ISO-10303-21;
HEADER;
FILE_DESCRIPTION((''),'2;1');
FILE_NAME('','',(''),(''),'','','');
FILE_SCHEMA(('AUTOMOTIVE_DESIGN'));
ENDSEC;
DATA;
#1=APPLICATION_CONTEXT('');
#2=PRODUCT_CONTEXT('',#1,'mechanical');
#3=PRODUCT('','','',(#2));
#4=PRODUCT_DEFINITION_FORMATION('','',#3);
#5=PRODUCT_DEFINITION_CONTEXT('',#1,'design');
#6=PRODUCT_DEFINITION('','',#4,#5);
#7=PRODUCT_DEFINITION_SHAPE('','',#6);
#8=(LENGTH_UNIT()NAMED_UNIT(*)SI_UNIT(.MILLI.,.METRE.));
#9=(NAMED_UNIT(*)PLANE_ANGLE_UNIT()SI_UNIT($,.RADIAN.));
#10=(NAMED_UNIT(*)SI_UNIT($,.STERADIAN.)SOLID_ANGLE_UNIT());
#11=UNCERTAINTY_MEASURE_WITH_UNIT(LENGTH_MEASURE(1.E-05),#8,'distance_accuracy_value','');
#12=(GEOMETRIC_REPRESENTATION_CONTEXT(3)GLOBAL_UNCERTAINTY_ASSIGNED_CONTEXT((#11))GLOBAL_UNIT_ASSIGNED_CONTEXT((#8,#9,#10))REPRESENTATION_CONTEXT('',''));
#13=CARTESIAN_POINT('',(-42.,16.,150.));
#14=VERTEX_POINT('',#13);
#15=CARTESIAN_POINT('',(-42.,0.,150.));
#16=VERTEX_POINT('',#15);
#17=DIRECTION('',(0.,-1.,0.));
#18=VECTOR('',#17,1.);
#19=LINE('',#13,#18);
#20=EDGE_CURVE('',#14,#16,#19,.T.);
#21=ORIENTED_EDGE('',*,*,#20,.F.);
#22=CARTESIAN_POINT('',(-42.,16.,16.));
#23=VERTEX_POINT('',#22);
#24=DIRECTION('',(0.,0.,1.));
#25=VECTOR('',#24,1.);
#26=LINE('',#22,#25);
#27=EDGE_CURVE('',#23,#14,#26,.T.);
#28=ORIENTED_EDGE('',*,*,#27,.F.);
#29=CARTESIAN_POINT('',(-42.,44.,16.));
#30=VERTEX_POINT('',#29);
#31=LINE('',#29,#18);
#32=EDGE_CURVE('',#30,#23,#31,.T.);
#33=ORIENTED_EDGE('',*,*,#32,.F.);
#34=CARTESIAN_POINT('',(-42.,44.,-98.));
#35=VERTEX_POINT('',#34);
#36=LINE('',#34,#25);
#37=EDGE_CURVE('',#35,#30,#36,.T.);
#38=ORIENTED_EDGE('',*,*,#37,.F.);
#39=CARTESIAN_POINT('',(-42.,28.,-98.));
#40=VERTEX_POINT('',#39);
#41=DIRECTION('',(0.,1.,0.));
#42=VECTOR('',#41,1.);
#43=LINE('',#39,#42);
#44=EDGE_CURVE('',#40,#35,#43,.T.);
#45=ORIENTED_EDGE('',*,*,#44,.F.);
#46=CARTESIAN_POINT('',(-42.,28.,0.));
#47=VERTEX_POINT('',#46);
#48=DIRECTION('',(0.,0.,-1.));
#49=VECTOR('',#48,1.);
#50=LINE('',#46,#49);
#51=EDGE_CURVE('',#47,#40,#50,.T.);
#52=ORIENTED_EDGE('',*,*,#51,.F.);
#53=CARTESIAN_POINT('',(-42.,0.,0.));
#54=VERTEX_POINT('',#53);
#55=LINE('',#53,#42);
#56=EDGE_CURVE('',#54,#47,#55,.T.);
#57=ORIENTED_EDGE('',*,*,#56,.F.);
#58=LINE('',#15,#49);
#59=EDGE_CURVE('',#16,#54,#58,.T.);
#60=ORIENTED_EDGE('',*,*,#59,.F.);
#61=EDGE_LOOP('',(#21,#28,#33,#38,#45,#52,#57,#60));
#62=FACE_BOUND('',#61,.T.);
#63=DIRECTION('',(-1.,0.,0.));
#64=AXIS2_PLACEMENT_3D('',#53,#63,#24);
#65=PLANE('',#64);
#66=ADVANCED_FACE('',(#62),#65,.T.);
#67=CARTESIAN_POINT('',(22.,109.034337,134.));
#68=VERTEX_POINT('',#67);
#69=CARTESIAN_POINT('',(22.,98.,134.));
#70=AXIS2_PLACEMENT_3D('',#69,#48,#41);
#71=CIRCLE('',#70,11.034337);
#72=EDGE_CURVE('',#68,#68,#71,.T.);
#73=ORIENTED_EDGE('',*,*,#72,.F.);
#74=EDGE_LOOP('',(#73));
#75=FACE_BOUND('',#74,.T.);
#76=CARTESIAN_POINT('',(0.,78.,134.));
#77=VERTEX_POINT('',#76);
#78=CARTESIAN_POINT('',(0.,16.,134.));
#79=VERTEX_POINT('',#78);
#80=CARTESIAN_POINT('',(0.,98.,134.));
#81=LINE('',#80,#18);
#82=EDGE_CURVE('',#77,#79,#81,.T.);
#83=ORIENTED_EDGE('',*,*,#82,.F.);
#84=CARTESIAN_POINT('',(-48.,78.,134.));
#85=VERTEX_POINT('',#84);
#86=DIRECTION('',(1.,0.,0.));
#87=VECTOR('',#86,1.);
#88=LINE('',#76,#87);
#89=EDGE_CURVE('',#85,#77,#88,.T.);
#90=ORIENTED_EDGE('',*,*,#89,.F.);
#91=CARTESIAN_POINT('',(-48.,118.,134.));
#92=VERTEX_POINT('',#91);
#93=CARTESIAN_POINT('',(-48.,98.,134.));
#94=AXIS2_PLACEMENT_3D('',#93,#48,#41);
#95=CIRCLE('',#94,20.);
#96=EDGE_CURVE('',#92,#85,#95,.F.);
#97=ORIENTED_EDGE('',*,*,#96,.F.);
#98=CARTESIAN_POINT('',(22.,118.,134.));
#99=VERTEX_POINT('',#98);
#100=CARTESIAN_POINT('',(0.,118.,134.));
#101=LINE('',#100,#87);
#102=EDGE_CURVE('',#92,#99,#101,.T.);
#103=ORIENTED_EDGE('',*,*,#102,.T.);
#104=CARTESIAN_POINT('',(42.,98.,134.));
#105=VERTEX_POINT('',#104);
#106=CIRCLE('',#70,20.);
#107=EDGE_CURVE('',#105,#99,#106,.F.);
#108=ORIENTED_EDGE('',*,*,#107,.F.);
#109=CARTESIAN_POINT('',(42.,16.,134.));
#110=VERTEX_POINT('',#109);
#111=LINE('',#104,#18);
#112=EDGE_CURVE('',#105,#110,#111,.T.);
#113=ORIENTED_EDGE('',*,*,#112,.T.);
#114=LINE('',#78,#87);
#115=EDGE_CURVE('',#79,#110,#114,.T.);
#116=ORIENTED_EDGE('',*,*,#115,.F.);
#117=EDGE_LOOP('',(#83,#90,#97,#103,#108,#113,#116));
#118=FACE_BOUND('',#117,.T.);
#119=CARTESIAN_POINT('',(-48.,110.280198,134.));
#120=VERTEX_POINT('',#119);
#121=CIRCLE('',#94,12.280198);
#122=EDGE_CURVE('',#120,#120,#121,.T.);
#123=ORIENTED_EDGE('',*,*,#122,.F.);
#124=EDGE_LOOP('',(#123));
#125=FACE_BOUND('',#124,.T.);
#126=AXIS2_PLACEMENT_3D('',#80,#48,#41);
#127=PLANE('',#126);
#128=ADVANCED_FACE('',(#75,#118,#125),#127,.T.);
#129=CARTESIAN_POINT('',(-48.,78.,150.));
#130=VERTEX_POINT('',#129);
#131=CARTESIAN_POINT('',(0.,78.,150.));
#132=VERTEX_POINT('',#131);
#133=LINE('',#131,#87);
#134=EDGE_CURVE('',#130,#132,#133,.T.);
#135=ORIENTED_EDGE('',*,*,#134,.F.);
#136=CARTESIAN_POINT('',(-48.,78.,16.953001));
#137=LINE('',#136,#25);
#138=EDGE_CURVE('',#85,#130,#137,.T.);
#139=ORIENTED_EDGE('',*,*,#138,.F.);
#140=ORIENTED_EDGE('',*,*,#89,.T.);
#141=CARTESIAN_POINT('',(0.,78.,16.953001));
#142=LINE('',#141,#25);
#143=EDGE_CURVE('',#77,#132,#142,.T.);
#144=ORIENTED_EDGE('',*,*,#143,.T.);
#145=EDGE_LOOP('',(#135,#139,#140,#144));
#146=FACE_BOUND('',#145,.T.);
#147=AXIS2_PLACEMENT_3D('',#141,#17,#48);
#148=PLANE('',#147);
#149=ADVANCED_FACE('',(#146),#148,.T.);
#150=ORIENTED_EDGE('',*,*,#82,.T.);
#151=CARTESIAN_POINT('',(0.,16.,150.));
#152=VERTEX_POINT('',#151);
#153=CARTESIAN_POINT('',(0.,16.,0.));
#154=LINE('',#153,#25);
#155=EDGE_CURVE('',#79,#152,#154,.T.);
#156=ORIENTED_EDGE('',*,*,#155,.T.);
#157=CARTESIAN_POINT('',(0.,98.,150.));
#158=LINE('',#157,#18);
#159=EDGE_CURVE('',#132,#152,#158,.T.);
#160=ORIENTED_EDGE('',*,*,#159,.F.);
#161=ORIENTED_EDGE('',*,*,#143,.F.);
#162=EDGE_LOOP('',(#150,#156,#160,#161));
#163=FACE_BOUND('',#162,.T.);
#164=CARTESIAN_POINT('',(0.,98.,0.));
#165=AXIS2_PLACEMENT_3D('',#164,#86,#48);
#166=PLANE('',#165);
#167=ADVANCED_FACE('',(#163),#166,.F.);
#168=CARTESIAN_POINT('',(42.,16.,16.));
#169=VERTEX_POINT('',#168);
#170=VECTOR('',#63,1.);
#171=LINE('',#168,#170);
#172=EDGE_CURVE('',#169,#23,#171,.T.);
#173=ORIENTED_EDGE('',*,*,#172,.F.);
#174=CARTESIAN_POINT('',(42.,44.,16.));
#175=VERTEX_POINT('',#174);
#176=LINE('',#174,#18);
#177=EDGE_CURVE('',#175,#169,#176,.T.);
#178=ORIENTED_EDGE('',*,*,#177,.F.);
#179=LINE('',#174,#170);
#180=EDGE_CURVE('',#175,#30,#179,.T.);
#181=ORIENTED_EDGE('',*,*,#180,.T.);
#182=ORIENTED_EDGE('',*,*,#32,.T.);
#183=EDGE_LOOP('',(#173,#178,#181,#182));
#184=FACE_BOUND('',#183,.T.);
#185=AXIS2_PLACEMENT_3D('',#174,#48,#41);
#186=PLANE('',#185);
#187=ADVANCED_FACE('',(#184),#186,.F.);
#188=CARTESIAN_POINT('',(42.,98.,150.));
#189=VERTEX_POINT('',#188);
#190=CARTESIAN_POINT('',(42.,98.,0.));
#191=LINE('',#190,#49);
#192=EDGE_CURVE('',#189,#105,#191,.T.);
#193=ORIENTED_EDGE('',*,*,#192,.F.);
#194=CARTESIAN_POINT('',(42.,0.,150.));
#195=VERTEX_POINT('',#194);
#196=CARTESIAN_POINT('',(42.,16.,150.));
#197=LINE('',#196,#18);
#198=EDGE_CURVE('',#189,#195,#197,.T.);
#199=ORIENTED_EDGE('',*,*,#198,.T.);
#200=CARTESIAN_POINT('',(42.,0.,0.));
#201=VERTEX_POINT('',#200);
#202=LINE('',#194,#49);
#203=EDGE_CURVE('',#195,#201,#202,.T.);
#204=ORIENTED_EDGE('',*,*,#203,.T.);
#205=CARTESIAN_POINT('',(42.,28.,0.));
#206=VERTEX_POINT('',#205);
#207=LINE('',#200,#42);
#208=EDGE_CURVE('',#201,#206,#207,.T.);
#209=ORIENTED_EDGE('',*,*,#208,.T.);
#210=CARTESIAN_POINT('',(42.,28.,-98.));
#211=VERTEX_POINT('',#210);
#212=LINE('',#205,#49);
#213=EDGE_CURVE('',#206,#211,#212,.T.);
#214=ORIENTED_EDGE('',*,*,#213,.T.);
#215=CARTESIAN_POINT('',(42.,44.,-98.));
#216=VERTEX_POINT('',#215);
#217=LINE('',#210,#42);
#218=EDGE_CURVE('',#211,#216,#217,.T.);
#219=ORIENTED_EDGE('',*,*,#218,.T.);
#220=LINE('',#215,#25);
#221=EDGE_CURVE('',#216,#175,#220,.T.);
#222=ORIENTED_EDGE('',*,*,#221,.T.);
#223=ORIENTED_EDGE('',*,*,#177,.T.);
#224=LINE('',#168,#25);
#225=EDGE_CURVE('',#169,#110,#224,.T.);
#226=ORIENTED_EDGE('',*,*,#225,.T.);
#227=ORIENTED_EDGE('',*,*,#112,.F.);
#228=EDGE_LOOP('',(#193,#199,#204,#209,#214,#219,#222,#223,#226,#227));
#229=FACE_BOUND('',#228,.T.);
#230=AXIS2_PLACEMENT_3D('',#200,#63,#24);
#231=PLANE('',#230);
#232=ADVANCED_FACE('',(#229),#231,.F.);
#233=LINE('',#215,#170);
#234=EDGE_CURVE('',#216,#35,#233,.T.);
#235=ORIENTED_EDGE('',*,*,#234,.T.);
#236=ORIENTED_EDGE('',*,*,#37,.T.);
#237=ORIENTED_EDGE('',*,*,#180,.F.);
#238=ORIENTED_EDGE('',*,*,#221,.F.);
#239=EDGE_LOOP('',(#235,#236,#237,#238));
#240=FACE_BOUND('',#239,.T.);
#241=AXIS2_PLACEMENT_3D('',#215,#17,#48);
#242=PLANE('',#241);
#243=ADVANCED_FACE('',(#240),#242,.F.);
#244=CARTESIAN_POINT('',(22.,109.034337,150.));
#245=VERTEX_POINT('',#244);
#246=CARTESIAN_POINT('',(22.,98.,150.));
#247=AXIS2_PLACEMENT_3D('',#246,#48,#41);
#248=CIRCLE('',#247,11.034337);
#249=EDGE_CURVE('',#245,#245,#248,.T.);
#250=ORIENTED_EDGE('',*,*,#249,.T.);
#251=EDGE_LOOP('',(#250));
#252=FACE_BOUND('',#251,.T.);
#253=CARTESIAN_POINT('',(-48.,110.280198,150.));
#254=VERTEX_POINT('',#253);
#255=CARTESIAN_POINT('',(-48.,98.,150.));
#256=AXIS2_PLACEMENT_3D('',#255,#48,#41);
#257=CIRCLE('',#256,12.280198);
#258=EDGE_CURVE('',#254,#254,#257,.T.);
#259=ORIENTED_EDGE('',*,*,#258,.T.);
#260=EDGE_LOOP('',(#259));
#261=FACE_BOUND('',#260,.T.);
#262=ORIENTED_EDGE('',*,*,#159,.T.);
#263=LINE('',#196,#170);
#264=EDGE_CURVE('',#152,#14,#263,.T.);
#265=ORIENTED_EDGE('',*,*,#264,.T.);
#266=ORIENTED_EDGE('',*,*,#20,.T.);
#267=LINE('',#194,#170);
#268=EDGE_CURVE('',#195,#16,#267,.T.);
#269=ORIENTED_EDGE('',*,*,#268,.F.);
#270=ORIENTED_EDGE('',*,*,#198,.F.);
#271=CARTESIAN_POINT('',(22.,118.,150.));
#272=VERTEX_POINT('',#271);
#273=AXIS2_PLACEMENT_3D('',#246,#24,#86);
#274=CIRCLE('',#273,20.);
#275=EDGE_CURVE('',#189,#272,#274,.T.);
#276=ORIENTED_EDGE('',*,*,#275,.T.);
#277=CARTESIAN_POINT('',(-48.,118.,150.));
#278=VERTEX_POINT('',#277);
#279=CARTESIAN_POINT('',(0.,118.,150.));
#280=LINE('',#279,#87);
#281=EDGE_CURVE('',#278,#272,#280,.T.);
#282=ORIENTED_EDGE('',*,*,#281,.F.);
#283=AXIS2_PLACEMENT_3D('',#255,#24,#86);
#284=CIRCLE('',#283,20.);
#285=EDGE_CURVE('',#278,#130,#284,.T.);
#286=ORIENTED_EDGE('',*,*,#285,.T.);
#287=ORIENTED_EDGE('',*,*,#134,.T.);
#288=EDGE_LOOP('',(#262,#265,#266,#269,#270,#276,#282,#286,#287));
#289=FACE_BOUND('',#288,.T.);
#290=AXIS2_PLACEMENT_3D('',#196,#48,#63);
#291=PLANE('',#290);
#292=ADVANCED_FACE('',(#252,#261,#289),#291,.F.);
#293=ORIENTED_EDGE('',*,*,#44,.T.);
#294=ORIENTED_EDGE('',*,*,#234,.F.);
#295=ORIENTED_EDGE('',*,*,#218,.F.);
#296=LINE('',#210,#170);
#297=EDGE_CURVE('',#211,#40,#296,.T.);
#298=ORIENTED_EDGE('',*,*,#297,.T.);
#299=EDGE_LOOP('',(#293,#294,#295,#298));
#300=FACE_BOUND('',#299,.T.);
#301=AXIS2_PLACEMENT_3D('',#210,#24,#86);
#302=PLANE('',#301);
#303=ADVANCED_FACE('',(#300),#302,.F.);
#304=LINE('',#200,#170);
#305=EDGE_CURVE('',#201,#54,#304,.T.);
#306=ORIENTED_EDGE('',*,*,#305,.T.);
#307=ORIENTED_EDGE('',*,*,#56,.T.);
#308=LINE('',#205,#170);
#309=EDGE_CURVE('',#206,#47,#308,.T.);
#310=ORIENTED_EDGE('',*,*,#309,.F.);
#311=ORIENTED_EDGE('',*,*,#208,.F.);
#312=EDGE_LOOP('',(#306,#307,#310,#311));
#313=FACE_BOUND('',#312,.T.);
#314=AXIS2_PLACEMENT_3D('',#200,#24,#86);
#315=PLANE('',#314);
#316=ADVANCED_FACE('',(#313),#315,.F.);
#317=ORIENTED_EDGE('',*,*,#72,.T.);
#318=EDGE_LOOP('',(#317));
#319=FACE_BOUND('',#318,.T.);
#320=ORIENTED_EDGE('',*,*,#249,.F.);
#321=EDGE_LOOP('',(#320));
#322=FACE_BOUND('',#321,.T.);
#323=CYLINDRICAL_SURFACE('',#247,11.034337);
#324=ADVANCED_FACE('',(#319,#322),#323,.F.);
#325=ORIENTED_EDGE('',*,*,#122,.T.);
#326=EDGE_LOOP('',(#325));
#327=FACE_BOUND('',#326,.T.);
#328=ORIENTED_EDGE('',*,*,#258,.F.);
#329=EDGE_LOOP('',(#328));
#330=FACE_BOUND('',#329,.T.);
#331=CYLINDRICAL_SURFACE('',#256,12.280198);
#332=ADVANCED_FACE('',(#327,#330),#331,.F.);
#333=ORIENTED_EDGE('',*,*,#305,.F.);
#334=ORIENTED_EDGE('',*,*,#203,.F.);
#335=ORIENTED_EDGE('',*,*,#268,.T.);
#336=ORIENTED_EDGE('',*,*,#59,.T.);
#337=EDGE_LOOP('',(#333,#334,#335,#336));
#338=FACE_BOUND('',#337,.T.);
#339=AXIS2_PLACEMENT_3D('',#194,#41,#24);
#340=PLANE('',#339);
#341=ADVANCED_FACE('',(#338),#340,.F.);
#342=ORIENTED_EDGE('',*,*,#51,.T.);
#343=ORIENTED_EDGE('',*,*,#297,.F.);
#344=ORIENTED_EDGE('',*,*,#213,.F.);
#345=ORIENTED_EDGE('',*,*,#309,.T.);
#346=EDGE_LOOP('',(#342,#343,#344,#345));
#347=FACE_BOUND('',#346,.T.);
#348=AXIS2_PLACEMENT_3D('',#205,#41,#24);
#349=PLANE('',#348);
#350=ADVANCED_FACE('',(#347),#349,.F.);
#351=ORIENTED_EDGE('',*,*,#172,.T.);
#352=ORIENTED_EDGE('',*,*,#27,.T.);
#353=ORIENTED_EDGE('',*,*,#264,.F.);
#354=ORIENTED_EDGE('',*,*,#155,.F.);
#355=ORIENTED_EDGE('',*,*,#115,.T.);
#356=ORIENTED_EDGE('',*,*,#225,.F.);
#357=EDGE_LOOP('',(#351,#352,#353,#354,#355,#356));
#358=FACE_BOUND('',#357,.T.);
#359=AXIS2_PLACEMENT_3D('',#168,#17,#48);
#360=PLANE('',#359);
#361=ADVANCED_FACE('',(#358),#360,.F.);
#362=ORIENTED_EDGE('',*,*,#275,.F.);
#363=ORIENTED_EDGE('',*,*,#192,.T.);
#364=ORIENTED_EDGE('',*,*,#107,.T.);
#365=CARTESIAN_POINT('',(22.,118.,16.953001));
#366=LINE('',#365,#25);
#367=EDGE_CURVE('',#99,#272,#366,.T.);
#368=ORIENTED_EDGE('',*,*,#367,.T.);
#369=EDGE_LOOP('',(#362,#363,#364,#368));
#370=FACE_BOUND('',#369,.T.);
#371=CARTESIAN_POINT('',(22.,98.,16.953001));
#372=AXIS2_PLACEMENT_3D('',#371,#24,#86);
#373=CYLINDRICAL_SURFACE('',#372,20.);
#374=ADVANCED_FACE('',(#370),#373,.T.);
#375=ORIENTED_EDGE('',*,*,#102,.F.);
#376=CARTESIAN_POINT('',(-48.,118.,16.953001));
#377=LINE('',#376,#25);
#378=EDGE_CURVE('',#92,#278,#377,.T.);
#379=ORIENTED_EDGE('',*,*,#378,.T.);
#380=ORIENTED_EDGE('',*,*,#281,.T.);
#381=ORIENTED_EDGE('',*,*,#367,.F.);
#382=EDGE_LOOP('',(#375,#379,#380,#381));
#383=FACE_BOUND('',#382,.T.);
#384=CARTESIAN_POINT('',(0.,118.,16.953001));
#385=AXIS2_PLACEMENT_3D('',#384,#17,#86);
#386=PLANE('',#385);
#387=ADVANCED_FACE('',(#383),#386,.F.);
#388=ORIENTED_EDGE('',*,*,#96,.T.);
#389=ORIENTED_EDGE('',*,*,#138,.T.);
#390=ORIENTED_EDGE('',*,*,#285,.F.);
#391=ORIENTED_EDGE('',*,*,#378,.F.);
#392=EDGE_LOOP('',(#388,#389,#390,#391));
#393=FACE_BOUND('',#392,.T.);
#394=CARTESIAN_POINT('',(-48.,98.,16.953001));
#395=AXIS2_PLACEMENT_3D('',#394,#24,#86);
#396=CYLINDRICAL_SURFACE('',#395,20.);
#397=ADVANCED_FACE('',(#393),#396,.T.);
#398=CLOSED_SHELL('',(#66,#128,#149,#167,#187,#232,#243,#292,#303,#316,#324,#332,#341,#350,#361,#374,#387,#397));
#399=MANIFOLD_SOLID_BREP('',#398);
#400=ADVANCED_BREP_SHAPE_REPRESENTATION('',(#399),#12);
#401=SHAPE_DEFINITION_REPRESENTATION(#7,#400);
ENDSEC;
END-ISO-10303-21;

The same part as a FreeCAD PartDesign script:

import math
import FreeCAD as App
import Part
import Sketcher

V = App.Vector

doc = App.newDocument("Part")
body = doc.addObject("PartDesign::Body", "Body")

sketch1 = body.newObject("Sketcher::SketchObject", "Sketch")
sketch1.AttachmentSupport = (doc.getObject("YZ_Plane"), [""])
sketch1.MapMode = "FlatFace"
sketch1.addGeometry([
    Part.LineSegment(V(0, 150, 0), V(0, 0, 0)),
    Part.LineSegment(V(0, 0, 0), V(28, 0, 0)),
    Part.LineSegment(V(28, 0, 0), V(28, -98, 0)),
    Part.LineSegment(V(28, -98, 0), V(44, -98, 0)),
    Part.LineSegment(V(44, -98, 0), V(44, 16, 0)),
    Part.LineSegment(V(44, 16, 0), V(16, 16, 0)),
    Part.LineSegment(V(16, 16, 0), V(16, 150, 0)),
    Part.LineSegment(V(16, 150, 0), V(0, 150, 0)),
], False)
sketch1.addConstraint([
    Sketcher.Constraint("Coincident", 0, 2, 1, 1),
    Sketcher.Constraint("Coincident", 1, 2, 2, 1),
    Sketcher.Constraint("Coincident", 2, 2, 3, 1),
    Sketcher.Constraint("Coincident", 3, 2, 4, 1),
    Sketcher.Constraint("Coincident", 4, 2, 5, 1),
    Sketcher.Constraint("Coincident", 5, 2, 6, 1),
    Sketcher.Constraint("Coincident", 6, 2, 7, 1),
    Sketcher.Constraint("Coincident", 7, 2, 0, 1),
    Sketcher.Constraint("Vertical", 0),
    Sketcher.Constraint("Horizontal", 1),
    Sketcher.Constraint("Vertical", 2),
    Sketcher.Constraint("Horizontal", 3),
    Sketcher.Constraint("Vertical", 4),
    Sketcher.Constraint("Horizontal", 5),
    Sketcher.Constraint("Vertical", 6),
    Sketcher.Constraint("Horizontal", 7),
    Sketcher.Constraint("Coincident", 0, 2, -1, 1),
    Sketcher.Constraint("Equal", 1, 5),
    Sketcher.Constraint("DistanceX", 1, 1, 1, 2, 28.0),
    Sketcher.Constraint("DistanceX", 3, 1, 3, 2, 16.0),
    Sketcher.Constraint("DistanceY", 0, 2, 0, 1, 150.0),
    Sketcher.Constraint("DistanceY", 2, 2, 2, 1, 98.0),
    Sketcher.Constraint("DistanceY", 4, 1, 4, 2, 114.0),
])
pad1 = body.newObject("PartDesign::Pad", "Pad")
pad1.Profile = sketch1
pad1.Length = 84
pad1.Midplane = True

sketch2 = body.newObject("Sketcher::SketchObject", "Sketch001")
sketch2.AttachmentSupport = (doc.getObject("XZ_Plane"), [""])
sketch2.MapMode = "FlatFace"
sketch2.AttachmentOffset = App.Placement(V(0, 0, -16), App.Rotation())
sketch2.addGeometry([
    Part.LineSegment(V(0, 134, 0), V(0, 150, 0)),
    Part.LineSegment(V(0, 150, 0), V(42, 150, 0)),
    Part.LineSegment(V(42, 150, 0), V(42, 134, 0)),
    Part.LineSegment(V(42, 134, 0), V(0, 134, 0)),
], False)
sketch2.addConstraint([
    Sketcher.Constraint("Coincident", 0, 2, 1, 1),
    Sketcher.Constraint("Coincident", 1, 2, 2, 1),
    Sketcher.Constraint("Coincident", 2, 2, 3, 1),
    Sketcher.Constraint("Coincident", 3, 2, 0, 1),
    Sketcher.Constraint("Vertical", 0),
    Sketcher.Constraint("Horizontal", 1),
    Sketcher.Constraint("Vertical", 2),
    Sketcher.Constraint("Horizontal", 3),
    Sketcher.Constraint("PointOnObject", 0, 2, -2),
    Sketcher.Constraint("DistanceX", 1, 1, 1, 2, 42.0),
    Sketcher.Constraint("DistanceY", 0, 1, 0, 2, 16.0),
    Sketcher.Constraint("DistanceY", -1, 1, 0, 2, 150.0),
])
pad2 = body.newObject("PartDesign::Pad", "Pad001")
pad2.Profile = sketch2
pad2.Length = 82
pad2.Reversed = True

sketch3 = body.newObject("Sketcher::SketchObject", "Sketch002")
sketch3.AttachmentSupport = (doc.getObject("XY_Plane"), [""])
sketch3.MapMode = "FlatFace"
sketch3.AttachmentOffset = App.Placement(V(0, 0, 150), App.Rotation())
sketch3.addGeometry([
    Part.LineSegment(V(22, 118, 0), V(-48, 118, 0)),
    Part.ArcOfCircle(Part.Circle(V(-48, 98, 0), V(0, 0, 1), 20), math.radians(90), math.radians(270)),
    Part.LineSegment(V(-48, 78, 0), V(22, 78, 0)),
    Part.ArcOfCircle(Part.Circle(V(22, 98, 0), V(0, 0, 1), 20), math.radians(-90), math.radians(90)),
], False)
sketch3.addConstraint([
    Sketcher.Constraint("Tangent", 0, 2, 1, 1),
    Sketcher.Constraint("Tangent", 1, 2, 2, 1),
    Sketcher.Constraint("Tangent", 2, 2, 3, 1),
    Sketcher.Constraint("Tangent", 3, 2, 0, 1),
    Sketcher.Constraint("Horizontal", 0),
    Sketcher.Constraint("Horizontal", 2),
    Sketcher.Constraint("Radius", 1, 20.0),
    Sketcher.Constraint("DistanceX", 0, 2, 0, 1, 70.0),
    Sketcher.Constraint("DistanceX", 1, 3, -1, 1, 48.0),
    Sketcher.Constraint("DistanceY", -1, 1, 1, 3, 98.0),
])
pad3 = body.newObject("PartDesign::Pad", "Pad002")
pad3.Profile = sketch3
pad3.Length = 16
pad3.Reversed = True

sketch4 = body.newObject("Sketcher::SketchObject", "Sketch003")
sketch4.AttachmentSupport = (doc.getObject("XY_Plane"), [""])
sketch4.MapMode = "FlatFace"
sketch4.AttachmentOffset = App.Placement(V(0, 0, 134), App.Rotation())
sketch4.addGeometry([
    Part.Circle(V(22, 98, 0), V(0, 0, 1), 11),
    Part.Circle(V(-48, 98, 0), V(0, 0, 1), 12),
], False)
sketch4.addConstraint([
    Sketcher.Constraint("Horizontal", 0, 3, 1, 3),
    Sketcher.Constraint("DistanceX", -1, 1, 0, 3, 22.0),
    Sketcher.Constraint("DistanceY", -1, 1, 0, 3, 98.0),
    Sketcher.Constraint("DistanceX", 1, 3, -1, 1, 48.0),
    Sketcher.Constraint("Diameter", 0, 22.068674),
    Sketcher.Constraint("Diameter", 1, 24.560396),
])
pocket1 = body.newObject("PartDesign::Pocket", "Pocket")
pocket1.Profile = sketch4
pocket1.Type = "ThroughAll"
pocket1.Midplane = True

doc.recompute()
